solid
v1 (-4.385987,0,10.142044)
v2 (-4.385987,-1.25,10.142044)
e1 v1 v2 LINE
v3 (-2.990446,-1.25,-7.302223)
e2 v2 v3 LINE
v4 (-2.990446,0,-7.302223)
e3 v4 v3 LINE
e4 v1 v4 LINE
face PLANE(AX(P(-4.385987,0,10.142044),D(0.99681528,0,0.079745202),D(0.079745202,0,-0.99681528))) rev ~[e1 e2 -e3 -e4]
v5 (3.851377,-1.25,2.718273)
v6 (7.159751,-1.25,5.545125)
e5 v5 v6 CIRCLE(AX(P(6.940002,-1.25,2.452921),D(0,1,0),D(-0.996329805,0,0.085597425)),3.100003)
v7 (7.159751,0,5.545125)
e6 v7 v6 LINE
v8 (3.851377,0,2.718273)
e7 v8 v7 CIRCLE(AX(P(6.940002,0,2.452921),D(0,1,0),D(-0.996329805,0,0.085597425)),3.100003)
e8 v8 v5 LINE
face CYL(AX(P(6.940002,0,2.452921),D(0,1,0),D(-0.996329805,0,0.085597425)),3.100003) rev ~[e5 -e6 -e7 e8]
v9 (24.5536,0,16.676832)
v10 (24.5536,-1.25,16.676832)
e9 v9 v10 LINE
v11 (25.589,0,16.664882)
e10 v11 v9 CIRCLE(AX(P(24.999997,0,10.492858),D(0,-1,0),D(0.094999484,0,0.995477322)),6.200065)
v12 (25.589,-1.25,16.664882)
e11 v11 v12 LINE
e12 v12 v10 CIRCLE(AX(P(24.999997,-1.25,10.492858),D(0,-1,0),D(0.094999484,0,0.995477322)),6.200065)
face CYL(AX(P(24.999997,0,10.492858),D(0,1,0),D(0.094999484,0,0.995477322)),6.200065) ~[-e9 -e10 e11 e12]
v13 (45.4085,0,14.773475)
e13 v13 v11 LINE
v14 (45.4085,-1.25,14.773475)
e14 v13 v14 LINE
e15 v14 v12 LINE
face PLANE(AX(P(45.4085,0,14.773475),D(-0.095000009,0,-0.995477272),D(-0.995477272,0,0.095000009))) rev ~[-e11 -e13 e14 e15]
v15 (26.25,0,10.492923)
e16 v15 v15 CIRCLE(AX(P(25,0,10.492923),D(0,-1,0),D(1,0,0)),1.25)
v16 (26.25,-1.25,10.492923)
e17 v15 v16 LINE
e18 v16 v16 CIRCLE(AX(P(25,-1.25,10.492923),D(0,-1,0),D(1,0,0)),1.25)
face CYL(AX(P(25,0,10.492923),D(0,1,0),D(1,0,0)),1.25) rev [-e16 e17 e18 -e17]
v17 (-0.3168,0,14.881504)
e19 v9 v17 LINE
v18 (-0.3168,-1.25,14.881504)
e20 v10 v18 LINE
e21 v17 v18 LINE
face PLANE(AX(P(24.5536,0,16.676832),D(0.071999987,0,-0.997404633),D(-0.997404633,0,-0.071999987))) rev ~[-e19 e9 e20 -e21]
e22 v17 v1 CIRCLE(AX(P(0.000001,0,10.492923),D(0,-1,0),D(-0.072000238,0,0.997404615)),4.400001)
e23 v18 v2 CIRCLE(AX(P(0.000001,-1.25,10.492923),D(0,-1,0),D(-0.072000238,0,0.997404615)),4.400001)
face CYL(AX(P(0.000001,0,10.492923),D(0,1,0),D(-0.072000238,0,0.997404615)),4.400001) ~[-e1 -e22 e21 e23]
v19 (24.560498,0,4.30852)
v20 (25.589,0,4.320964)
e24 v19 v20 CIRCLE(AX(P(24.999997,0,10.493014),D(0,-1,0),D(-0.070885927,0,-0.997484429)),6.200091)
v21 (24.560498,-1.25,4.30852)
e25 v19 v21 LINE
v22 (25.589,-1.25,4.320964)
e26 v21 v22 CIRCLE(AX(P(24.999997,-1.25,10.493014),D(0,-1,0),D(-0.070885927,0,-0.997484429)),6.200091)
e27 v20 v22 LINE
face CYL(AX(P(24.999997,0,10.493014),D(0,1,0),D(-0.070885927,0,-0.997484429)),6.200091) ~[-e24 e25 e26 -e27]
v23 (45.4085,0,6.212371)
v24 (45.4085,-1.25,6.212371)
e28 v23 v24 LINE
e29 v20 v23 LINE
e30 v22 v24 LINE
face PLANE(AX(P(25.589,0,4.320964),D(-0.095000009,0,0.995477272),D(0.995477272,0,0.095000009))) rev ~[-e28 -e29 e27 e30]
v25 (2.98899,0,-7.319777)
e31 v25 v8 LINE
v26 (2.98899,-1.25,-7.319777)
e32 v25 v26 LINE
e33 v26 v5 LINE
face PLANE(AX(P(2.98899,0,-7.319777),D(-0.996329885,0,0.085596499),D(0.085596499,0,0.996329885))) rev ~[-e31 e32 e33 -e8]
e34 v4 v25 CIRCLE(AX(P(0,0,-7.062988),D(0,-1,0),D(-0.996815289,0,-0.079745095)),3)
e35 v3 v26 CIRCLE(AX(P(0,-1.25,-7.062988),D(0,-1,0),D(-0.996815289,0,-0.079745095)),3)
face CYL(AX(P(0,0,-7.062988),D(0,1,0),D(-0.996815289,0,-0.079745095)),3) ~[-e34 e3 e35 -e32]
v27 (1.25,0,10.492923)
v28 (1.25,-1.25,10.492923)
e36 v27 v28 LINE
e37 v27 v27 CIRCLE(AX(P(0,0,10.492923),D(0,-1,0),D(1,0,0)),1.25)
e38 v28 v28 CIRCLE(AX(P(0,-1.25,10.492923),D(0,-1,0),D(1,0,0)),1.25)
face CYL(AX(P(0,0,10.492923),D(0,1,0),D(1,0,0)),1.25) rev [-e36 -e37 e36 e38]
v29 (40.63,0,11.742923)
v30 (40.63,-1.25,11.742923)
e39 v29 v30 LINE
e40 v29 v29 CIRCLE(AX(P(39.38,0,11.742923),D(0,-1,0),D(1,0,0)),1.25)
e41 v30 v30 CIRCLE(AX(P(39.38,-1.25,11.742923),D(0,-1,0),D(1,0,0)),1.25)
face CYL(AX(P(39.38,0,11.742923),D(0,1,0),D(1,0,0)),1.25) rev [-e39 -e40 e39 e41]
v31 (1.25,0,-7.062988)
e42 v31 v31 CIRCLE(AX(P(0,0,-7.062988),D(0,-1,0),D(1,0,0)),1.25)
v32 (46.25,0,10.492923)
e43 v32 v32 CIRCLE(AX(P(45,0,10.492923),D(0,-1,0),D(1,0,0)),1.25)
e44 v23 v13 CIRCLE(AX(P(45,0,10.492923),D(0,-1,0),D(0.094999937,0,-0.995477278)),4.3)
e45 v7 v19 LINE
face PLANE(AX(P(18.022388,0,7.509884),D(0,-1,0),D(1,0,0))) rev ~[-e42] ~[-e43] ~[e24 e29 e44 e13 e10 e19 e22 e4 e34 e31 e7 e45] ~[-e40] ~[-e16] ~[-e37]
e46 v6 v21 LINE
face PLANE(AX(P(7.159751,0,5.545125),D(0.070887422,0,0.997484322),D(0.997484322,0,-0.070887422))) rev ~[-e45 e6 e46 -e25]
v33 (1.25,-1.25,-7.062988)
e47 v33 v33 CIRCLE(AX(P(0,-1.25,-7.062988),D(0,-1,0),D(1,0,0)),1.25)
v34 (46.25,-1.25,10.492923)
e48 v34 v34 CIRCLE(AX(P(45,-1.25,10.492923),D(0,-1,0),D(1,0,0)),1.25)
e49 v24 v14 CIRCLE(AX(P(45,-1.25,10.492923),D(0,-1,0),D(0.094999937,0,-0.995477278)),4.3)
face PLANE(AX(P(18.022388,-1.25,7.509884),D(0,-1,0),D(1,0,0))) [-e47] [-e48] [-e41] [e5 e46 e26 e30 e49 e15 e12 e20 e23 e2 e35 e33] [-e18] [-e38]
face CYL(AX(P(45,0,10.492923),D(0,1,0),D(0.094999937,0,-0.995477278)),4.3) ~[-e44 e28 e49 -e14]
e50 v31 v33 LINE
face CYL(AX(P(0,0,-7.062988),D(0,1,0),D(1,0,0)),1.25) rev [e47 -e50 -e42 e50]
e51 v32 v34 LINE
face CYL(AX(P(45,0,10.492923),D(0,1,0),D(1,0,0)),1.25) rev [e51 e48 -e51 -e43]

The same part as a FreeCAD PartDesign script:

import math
import FreeCAD as App
import Part
import Sketcher

doc = App.newDocument("Part")
body = doc.addObject("PartDesign::Body", "Body")

# Sketch on XZ plane
sketch1 = doc.addObject("Sketcher::SketchObject", "Sketch")
body.addObject(sketch1)
sketch1.AttachmentSupport = (doc.XZ_Plane, [""])
sketch1.MapMode = "FlatFace"
sketch1.addGeometry(Part.LineSegment(App.Vector(24.5536, 16.676832, 0), App.Vector(-0.3168, 14.881504, 0)), False)
sketch1.addGeometry(Part.ArcOfCircle(Part.Circle(App.Vector(0.000001, 10.492923, 0), App.Vector(0, 0, 1), 4.400001), math.radians(94.128882), math.radians(184.573918)), False)
sketch1.addGeometry(Part.LineSegment(App.Vector(-4.385987, 10.142044, 0), App.Vector(-2.990446, -7.302223, 0)), False)
sketch1.addGeometry(Part.ArcOfCircle(Part.Circle(App.Vector(0, -7.062988, 0), App.Vector(0, 0, 1), 3), math.radians(-175.426086), math.radians(-4.910323)), False)
sketch1.addGeometry(Part.LineSegment(App.Vector(2.98899, -7.319777, 0), App.Vector(3.851377, 2.718273, 0)), False)
sketch1.addGeometry(Part.ArcOfCircle(Part.Circle(App.Vector(6.940002, 2.452921, 0), App.Vector(0, 0, 1), 3.100003), math.radians(85.935083), math.radians(175.08962)), False)
sketch1.addGeometry(Part.LineSegment(App.Vector(7.159751, 5.545125, 0), App.Vector(24.560498, 4.30852, 0)), False)
sketch1.addGeometry(Part.ArcOfCircle(Part.Circle(App.Vector(24.999997, 10.493014, 0), App.Vector(0, 0, 1), 6.200091), math.radians(-94.064873), math.radians(-84.548734)), False)
sketch1.addGeometry(Part.LineSegment(App.Vector(25.589, 4.320964, 0), App.Vector(45.4085, 6.212371, 0)), False)
sketch1.addGeometry(Part.ArcOfCircle(Part.Circle(App.Vector(45, 10.492923, 0), App.Vector(0, 0, 1), 4.3), math.radians(-84.548684), math.radians(84.548684)), False)
sketch1.addGeometry(Part.LineSegment(App.Vector(45.4085, 14.773475, 0), App.Vector(25.589, 16.664882, 0)), False)
sketch1.addGeometry(Part.ArcOfCircle(Part.Circle(App.Vector(24.999997, 10.492858, 0), App.Vector(0, 0, 1), 6.200065), math.radians(84.54871), math.radians(94.128798)), False)
sketch1.addGeometry(Part.Circle(App.Vector(0, -7.062988, 0), App.Vector(0, 0, 1), 1.25), False)
sketch1.addGeometry(Part.Circle(App.Vector(0, 10.492923, 0), App.Vector(0, 0, 1), 1.25), False)
sketch1.addGeometry(Part.Circle(App.Vector(25, 10.492923, 0), App.Vector(0, 0, 1), 1.25), False)
sketch1.addGeometry(Part.Circle(App.Vector(39.38, 11.742923, 0), App.Vector(0, 0, 1), 1.25), False)
sketch1.addGeometry(Part.Circle(App.Vector(45, 10.492923, 0), App.Vector(0, 0, 1), 1.25), False)
sketch1.addConstraint(Sketcher.Constraint("Coincident", 0, 2, 1, 1))
sketch1.addConstraint(Sketcher.Constraint("Coincident", 1, 2, 2, 1))
sketch1.addConstraint(Sketcher.Constraint("Coincident", 2, 2, 3, 1))
sketch1.addConstraint(Sketcher.Constraint("Coincident", 3, 2, 4, 1))
sketch1.addConstraint(Sketcher.Constraint("Coincident", 4, 2, 5, 2))
sketch1.addConstraint(Sketcher.Constraint("Coincident", 5, 1, 6, 1))
sketch1.addConstraint(Sketcher.Constraint("Coincident", 6, 2, 7, 1))
sketch1.addConstraint(Sketcher.Constraint("Coincident", 7, 2, 8, 1))
sketch1.addConstraint(Sketcher.Constraint("Coincident", 8, 2, 9, 1))
sketch1.addConstraint(Sketcher.Constraint("Coincident", 9, 2, 10, 1))
sketch1.addConstraint(Sketcher.Constraint("Coincident", 10, 2, 11, 1))
sketch1.addConstraint(Sketcher.Constraint("Coincident", 11, 2, 0, 1))
sketch1.addConstraint(Sketcher.Constraint("Coincident", 12, 3, 3, 3))
sketch1.addConstraint(Sketcher.Constraint("Coincident", 13, 3, 1, 3))
sketch1.addConstraint(Sketcher.Constraint("Coincident", 16, 3, 9, 3))
sketch1.addConstraint(Sketcher.Constraint("PointOnObject", 1, 3, -2))
sketch1.addConstraint(Sketcher.Constraint("PointOnObject", 3, 3, -2))
sketch1.addConstraint(Sketcher.Constraint("Radius", 3, 3.0))
sketch1.addConstraint(Sketcher.Constraint("Diameter", 12, 2.5))
sketch1.addConstraint(Sketcher.Constraint("Diameter", 13, 2.5))
sketch1.addConstraint(Sketcher.Constraint("Diameter", 14, 2.5))
sketch1.addConstraint(Sketcher.Constraint("Diameter", 15, 2.5))
sketch1.addConstraint(Sketcher.Constraint("Diameter", 16, 2.5))
sketch1.addConstraint(Sketcher.Constraint("Radius", 1, 4.400001))
sketch1.addConstraint(Sketcher.Constraint("Radius", 9, 4.3))
sketch1.addConstraint(Sketcher.Constraint("DistanceX", -1, 1, 9, 3, 45.0))
sketch1.addConstraint(Sketcher.Constraint("DistanceX", -1, 1, 14, 3, 25.0))
sketch1.addConstraint(Sketcher.Constraint("Distance", 2, 17.5))
sketch1.addConstraint(Sketcher.Constraint("DistanceX", -1, 1, 15, 3, 39.38))
sketch1.addConstraint(Sketcher.Constraint("Radius", 7, 6.200091))
sketch1.addConstraint(Sketcher.Constraint("DistanceX", 1, 3, 5, 3, 6.940001))
sketch1.addConstraint(Sketcher.Constraint("DistanceY", 9, 3, 15, 3, 1.25))
sketch1.addConstraint(Sketcher.Constraint("DistanceY", 14, 3, 15, 3, 1.25))
sketch1.addConstraint(Sketcher.Constraint("DistanceX", -1, 1, 7, 2, 25.589))
sketch1.addConstraint(Sketcher.Constraint("DistanceX", -1, 1, 10, 2, 25.589))
sketch1.addConstraint(Sketcher.Constraint("Radius", 5, 3.100003))
sketch1.addConstraint(Sketcher.Constraint("Radius", 11, 6.200065))
sketch1.addConstraint(Sketcher.Constraint("DistanceY", 3, 3, 7, 3, 17.556001))
sketch1.addConstraint(Sketcher.Constraint("DistanceX", 0, 2, -1, 1, 0.3168))
sketch1.addConstraint(Sketcher.Constraint("DistanceX", -1, 1, 8, 2, 45.4085))
sketch1.addConstraint(Sketcher.Constraint("DistanceX", -1, 1, 9, 2, 45.4085))
sketch1.addConstraint(Sketcher.Constraint("DistanceX", -1, 1, 11, 2, 24.5536))
sketch1.addConstraint(Sketcher.Constraint("DistanceY", 3, 2, 1, 3, 17.8127))
sketch1.addConstraint(Sketcher.Constraint("DistanceY", 5, 1, 13, 3, 4.947798))
sketch1.addConstraint(Sketcher.Constraint("DistanceX", 6, 2, 11, 3, 0.439499))
sketch1.addConstraint(Sketcher.Constraint("DistanceX", 6, 2, 7, 3, 0.439499))
sketch1.addConstraint(Sketcher.Constraint("DistanceX", 6, 2, 7, 2, 1.028502))
sketch1.addConstraint(Sketcher.Constraint("DistanceY", -1, 1, 5, 3, 2.452921))
sketch1.addConstraint(Sketcher.Constraint("DistanceY", -1, 1, 11, 3, 10.492858))
sketch1.addConstraint(Sketcher.Constraint("DistanceX", -1, 1, 3, 2, 2.98899))
sketch1.addConstraint(Sketcher.Constraint("DistanceX", -1, 1, 5, 1, 7.159751))
sketch1.addConstraint(Sketcher.Constraint("DistanceY", -1, 1, 8, 2, 6.212371))
sketch1.addConstraint(Sketcher.Constraint("DistanceY", 1, 2, 13, 3, 0.350879))
sketch1.addConstraint(Sketcher.Constraint("DistanceY", 4, 2, 1, 3, 7.77465))
pad1 = doc.addObject("PartDesign::Pad", "Pad")
body.addObject(pad1)
pad1.Profile = sketch1
pad1.Length = 1.25

doc.recompute()
